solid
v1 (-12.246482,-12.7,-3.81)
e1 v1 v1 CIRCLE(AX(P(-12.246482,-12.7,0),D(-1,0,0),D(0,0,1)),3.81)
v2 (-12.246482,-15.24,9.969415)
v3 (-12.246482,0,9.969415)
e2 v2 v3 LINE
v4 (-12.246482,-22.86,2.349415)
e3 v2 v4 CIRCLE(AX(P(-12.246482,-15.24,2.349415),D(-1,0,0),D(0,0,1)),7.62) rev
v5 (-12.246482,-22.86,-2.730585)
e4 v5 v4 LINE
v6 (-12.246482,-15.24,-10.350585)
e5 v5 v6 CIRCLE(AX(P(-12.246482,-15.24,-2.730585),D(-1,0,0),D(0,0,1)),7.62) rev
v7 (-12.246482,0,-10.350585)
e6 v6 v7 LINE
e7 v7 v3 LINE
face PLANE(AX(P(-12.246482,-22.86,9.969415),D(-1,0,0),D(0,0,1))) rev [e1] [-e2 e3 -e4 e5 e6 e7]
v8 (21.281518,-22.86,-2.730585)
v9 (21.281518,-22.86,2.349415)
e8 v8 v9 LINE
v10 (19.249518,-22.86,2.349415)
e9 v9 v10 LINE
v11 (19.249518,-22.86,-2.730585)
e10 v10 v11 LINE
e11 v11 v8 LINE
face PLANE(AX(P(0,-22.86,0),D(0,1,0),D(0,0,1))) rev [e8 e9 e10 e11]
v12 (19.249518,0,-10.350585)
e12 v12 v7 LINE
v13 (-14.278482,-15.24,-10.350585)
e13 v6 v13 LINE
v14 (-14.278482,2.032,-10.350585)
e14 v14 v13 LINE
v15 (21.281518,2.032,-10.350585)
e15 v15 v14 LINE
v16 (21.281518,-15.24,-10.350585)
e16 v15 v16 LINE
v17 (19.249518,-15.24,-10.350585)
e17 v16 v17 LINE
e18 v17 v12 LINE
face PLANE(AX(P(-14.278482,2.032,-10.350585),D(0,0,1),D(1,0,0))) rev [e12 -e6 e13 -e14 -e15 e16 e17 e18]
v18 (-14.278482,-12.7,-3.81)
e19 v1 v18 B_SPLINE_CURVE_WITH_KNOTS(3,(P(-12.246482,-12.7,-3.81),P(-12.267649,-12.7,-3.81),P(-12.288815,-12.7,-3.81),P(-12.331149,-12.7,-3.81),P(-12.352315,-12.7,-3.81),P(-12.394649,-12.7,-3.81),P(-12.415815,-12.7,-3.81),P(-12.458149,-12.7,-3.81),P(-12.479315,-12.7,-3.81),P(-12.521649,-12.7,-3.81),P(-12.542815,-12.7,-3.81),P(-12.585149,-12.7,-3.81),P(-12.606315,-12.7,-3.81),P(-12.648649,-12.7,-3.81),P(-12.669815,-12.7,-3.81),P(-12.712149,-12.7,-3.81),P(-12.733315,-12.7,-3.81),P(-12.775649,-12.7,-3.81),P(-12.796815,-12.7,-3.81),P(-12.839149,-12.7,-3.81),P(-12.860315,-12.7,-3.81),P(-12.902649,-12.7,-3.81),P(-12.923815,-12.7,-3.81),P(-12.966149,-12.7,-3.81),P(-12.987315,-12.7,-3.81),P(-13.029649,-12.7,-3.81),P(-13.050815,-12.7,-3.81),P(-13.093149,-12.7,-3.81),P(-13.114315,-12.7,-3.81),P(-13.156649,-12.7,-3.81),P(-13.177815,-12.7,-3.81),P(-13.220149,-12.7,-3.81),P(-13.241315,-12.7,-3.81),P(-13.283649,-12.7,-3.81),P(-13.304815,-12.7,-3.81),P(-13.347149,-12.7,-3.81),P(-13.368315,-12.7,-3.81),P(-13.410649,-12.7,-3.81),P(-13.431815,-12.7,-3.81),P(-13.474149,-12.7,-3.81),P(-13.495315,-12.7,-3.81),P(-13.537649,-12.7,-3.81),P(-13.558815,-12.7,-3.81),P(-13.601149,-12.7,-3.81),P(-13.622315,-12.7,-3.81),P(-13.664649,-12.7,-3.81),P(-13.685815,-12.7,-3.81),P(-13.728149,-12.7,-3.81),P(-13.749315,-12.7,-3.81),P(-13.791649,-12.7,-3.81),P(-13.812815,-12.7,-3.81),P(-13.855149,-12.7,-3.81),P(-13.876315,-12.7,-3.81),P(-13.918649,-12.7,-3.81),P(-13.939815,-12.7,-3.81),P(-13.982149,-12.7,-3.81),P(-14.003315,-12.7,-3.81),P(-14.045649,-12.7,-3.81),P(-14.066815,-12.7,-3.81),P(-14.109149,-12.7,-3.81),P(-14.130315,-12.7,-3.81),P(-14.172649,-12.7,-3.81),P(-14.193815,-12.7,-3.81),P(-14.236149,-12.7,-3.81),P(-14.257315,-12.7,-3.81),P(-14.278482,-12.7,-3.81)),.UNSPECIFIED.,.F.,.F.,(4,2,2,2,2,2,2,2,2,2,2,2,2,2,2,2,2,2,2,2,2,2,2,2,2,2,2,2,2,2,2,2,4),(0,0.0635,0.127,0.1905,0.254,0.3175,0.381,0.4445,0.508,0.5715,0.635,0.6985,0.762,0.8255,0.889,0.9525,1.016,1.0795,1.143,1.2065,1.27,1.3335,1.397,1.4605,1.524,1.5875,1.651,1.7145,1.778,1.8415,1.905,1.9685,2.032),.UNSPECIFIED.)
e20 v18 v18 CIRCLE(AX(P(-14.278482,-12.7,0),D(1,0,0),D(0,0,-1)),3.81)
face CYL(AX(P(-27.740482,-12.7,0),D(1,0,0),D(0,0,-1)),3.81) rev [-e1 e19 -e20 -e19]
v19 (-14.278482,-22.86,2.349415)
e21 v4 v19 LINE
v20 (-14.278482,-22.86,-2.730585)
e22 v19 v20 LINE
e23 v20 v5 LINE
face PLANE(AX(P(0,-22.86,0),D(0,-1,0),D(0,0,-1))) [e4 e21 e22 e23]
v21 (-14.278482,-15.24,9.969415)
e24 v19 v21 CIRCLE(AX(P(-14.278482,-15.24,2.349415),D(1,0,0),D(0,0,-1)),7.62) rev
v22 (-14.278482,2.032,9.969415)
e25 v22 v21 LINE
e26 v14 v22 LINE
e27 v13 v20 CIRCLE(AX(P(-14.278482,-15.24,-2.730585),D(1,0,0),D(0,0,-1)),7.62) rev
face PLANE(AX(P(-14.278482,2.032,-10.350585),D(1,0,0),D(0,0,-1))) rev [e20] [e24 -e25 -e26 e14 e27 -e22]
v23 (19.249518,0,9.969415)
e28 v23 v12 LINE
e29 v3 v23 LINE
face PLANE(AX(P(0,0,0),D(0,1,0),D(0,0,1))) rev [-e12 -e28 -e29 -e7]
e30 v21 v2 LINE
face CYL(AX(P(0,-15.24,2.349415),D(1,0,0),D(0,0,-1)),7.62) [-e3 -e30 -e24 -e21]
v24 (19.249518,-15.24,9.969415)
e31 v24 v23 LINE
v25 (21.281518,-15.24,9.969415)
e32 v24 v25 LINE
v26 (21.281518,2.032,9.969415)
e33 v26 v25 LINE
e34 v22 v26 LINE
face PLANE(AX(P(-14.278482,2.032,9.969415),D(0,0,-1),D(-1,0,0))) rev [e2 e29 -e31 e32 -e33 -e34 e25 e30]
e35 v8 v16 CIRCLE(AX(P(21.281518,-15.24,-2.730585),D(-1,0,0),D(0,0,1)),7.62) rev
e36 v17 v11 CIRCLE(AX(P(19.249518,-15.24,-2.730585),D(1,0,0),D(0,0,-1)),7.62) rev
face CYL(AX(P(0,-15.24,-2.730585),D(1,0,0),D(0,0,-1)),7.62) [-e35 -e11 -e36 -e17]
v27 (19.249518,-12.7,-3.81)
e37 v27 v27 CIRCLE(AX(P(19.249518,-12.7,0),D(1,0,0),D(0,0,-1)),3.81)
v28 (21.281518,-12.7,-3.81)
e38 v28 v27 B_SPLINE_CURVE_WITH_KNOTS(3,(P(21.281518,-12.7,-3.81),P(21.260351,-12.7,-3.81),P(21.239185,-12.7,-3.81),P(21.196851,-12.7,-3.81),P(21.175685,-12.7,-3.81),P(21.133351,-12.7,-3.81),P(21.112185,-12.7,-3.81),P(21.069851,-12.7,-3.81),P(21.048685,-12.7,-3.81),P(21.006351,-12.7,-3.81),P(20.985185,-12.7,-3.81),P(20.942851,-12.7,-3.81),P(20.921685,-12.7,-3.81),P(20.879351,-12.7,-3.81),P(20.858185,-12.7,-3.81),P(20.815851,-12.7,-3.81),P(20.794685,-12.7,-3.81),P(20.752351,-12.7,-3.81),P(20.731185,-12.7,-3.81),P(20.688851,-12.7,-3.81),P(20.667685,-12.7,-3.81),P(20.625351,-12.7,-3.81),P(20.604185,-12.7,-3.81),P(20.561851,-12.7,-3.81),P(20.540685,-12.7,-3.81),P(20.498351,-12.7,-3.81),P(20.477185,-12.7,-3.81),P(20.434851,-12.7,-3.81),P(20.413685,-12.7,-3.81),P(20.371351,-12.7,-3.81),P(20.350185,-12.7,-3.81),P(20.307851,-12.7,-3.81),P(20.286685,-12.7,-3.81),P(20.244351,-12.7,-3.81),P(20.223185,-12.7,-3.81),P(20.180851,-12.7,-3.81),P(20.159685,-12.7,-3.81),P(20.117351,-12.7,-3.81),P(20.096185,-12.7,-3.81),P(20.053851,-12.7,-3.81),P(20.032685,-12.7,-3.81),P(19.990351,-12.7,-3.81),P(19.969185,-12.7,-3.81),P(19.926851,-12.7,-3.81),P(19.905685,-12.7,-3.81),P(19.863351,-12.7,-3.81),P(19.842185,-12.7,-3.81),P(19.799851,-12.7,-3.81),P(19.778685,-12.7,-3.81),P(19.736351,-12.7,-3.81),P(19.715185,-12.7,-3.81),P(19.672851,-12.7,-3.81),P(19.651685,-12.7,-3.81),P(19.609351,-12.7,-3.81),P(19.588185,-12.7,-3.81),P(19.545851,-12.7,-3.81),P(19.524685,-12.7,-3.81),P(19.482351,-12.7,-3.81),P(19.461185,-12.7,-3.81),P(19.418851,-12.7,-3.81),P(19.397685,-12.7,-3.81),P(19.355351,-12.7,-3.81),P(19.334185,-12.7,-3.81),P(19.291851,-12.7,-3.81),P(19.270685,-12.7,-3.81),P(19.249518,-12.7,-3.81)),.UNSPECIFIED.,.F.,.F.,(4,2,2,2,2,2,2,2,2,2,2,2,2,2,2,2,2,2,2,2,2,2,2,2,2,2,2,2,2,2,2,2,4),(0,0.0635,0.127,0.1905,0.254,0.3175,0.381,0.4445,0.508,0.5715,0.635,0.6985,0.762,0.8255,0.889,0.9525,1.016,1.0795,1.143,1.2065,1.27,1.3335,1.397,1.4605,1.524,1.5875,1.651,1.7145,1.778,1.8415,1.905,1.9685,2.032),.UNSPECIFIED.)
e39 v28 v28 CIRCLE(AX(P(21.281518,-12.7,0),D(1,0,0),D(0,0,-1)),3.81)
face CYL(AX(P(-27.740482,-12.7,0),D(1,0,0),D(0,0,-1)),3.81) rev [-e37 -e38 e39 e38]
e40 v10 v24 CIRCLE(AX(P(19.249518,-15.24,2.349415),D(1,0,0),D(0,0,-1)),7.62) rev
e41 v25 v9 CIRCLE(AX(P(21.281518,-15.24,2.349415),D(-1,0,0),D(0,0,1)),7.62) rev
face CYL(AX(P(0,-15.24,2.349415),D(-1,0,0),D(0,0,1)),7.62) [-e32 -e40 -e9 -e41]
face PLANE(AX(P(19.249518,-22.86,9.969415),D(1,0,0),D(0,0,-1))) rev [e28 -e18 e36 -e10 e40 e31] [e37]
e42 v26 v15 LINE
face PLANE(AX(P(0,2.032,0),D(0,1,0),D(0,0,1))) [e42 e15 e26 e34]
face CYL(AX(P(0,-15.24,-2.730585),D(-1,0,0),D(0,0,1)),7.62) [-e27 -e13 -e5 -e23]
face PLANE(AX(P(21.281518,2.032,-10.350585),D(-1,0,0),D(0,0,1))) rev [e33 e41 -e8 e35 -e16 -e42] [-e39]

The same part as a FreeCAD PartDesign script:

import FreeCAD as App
import Part
import Sketcher

V = App.Vector
Q = App.Units.Quantity


def edges_at(feature, points):
    """Names of the edges that pass closest to the given points."""
    edges = feature.Shape.Edges
    near = lambda p: min(range(len(edges)), key=lambda i: edges[i].distToShape(Part.Vertex(*p))[0])
    return sorted({f"Edge{near(p) + 1}" for p in points})


def add_polygon(sketch, points):
    """Adds a closed chain of lines whose ends are joined by coincident constraints."""
    first, n = sketch.GeometryCount, len(points)
    for a, b in zip(points, points[1:] + points[:1]):
        sketch.addGeometry(Part.LineSegment(App.Vector(*a, 0), App.Vector(*b, 0)), False)
    for i in range(n):
        sketch.addConstraint(Sketcher.Constraint("Coincident", first + i, 2, first + (i + 1) % n, 1))

doc = App.newDocument("Part")
body = doc.addObject("PartDesign::Body", "Body")

# Sketch on XZ plane
sketch1 = body.newObject("Sketcher::SketchObject", "Sketch")
sketch1.AttachmentSupport = (doc.getObject("XZ_Plane"), [""])
sketch1.MapMode = "FlatFace"
add_polygon(sketch1, [(-14, -10), (-14, 10), (21, 10), (21, -10)])  # lines 0-3
sketch1.addConstraint(Sketcher.Constraint("Vertical", 0))
sketch1.addConstraint(Sketcher.Constraint("Horizontal", 1))
sketch1.addConstraint(Sketcher.Constraint("Vertical", 2))
sketch1.addConstraint(Sketcher.Constraint("Horizontal", 3))
sketch1.addConstraint(Sketcher.Constraint("DistanceX", 1, 1, 1, 2, Q("1.4 in")))
sketch1.addConstraint(Sketcher.Constraint("DistanceY", 0, 1, 0, 2, Q("0.8 in")))
sketch1.addConstraint(Sketcher.Constraint("DistanceX", 0, 2, -1, 1, Q("14.278482 mm")))
sketch1.addConstraint(Sketcher.Constraint("DistanceY", -1, 1, 0, 2, Q("9.969415 mm")))
pad1 = body.newObject("PartDesign::Pad", "Pad")
pad1.Profile = sketch1
pad1.Length = Q("0.08 in")
pad1.Reversed = True

# Sketch on XZ plane
sketch2 = body.newObject("Sketcher::SketchObject", "Sketch001")
sketch2.AttachmentSupport = (doc.getObject("XZ_Plane"), [""])
sketch2.MapMode = "FlatFace"
add_polygon(sketch2, [(-14.3, 10), (-14.3, -10.4), (-12.2, -10.4), (-12.2, 10)])  # lines 0-3
add_polygon(sketch2, [(19.2, 10), (19.2, -10.4), (21.3, -10.4), (21.3, 10)])  # lines 4-7
sketch2.addConstraint(Sketcher.Constraint("Vertical", 0))
sketch2.addConstraint(Sketcher.Constraint("Horizontal", 1))
sketch2.addConstraint(Sketcher.Constraint("Vertical", 2))
sketch2.addConstraint(Sketcher.Constraint("Horizontal", 3))
sketch2.addConstraint(Sketcher.Constraint("Vertical", 4))
sketch2.addConstraint(Sketcher.Constraint("Horizontal", 5))
sketch2.addConstraint(Sketcher.Constraint("Vertical", 6))
sketch2.addConstraint(Sketcher.Constraint("Horizontal", 7))
sketch2.addConstraint(Sketcher.Constraint("Horizontal", 1, 2, 4, 2))
sketch2.addConstraint(Sketcher.Constraint("Horizontal", 3, 2, 6, 2))
sketch2.addConstraint(Sketcher.Constraint("Equal", 3, 5))
sketch2.addConstraint(Sketcher.Constraint("DistanceY", 0, 2, 0, 1, Q("0.8 in")))
sketch2.addConstraint(Sketcher.Constraint("DistanceX", 1, 1, 1, 2, Q("0.08 in")))
sketch2.addConstraint(Sketcher.Constraint("DistanceX", 0, 2, 5, 2, Q("1.4 in")))
sketch2.addConstraint(Sketcher.Constraint("DistanceX", 0, 2, -1, 1, Q("14.278482 mm")))
sketch2.addConstraint(Sketcher.Constraint("DistanceY", 0, 2, -1, 1, Q("10.350585 mm")))
pad2 = body.newObject("PartDesign::Pad", "Pad001")
pad2.Profile = sketch2
pad2.Length = Q("0.9 in")
doc.recompute()

fillet = body.newObject("PartDesign::Fillet", "Fillet")
fillet.Base = (pad2, edges_at(pad2, [
    (-13.262, -22.86, -10.351),
    (-13.262, -22.86, 9.969),
    (20.266, -22.86, 9.969),
    (20.266, -22.86, -10.351),
]))
fillet.Radius = Q("0.3 in")

# Sketch on YZ plane
sketch3 = body.newObject("Sketcher::SketchObject", "Sketch002")
sketch3.AttachmentSupport = (doc.getObject("YZ_Plane"), [""])
sketch3.MapMode = "FlatFace"
sketch3.AttachmentOffset = App.Placement(V(0, 0, 21.281518), App.Rotation())
sketch3.addGeometry(Part.Circle(V(-12.7, 0, 0), V(0, 0, 1), 3.8), False)
sketch3.addConstraint(Sketcher.Constraint("PointOnObject", 0, 3, -1))
sketch3.addConstraint(Sketcher.Constraint("Diameter", 0, Q("0.3 in")))
sketch3.addConstraint(Sketcher.Constraint("DistanceX", 0, 3, -1, 1, Q("0.5 in")))
pocket1 = body.newObject("PartDesign::Pocket", "Pocket")
pocket1.Profile = sketch3
pocket1.Length = Q("1.93 in")

doc.recompute()
